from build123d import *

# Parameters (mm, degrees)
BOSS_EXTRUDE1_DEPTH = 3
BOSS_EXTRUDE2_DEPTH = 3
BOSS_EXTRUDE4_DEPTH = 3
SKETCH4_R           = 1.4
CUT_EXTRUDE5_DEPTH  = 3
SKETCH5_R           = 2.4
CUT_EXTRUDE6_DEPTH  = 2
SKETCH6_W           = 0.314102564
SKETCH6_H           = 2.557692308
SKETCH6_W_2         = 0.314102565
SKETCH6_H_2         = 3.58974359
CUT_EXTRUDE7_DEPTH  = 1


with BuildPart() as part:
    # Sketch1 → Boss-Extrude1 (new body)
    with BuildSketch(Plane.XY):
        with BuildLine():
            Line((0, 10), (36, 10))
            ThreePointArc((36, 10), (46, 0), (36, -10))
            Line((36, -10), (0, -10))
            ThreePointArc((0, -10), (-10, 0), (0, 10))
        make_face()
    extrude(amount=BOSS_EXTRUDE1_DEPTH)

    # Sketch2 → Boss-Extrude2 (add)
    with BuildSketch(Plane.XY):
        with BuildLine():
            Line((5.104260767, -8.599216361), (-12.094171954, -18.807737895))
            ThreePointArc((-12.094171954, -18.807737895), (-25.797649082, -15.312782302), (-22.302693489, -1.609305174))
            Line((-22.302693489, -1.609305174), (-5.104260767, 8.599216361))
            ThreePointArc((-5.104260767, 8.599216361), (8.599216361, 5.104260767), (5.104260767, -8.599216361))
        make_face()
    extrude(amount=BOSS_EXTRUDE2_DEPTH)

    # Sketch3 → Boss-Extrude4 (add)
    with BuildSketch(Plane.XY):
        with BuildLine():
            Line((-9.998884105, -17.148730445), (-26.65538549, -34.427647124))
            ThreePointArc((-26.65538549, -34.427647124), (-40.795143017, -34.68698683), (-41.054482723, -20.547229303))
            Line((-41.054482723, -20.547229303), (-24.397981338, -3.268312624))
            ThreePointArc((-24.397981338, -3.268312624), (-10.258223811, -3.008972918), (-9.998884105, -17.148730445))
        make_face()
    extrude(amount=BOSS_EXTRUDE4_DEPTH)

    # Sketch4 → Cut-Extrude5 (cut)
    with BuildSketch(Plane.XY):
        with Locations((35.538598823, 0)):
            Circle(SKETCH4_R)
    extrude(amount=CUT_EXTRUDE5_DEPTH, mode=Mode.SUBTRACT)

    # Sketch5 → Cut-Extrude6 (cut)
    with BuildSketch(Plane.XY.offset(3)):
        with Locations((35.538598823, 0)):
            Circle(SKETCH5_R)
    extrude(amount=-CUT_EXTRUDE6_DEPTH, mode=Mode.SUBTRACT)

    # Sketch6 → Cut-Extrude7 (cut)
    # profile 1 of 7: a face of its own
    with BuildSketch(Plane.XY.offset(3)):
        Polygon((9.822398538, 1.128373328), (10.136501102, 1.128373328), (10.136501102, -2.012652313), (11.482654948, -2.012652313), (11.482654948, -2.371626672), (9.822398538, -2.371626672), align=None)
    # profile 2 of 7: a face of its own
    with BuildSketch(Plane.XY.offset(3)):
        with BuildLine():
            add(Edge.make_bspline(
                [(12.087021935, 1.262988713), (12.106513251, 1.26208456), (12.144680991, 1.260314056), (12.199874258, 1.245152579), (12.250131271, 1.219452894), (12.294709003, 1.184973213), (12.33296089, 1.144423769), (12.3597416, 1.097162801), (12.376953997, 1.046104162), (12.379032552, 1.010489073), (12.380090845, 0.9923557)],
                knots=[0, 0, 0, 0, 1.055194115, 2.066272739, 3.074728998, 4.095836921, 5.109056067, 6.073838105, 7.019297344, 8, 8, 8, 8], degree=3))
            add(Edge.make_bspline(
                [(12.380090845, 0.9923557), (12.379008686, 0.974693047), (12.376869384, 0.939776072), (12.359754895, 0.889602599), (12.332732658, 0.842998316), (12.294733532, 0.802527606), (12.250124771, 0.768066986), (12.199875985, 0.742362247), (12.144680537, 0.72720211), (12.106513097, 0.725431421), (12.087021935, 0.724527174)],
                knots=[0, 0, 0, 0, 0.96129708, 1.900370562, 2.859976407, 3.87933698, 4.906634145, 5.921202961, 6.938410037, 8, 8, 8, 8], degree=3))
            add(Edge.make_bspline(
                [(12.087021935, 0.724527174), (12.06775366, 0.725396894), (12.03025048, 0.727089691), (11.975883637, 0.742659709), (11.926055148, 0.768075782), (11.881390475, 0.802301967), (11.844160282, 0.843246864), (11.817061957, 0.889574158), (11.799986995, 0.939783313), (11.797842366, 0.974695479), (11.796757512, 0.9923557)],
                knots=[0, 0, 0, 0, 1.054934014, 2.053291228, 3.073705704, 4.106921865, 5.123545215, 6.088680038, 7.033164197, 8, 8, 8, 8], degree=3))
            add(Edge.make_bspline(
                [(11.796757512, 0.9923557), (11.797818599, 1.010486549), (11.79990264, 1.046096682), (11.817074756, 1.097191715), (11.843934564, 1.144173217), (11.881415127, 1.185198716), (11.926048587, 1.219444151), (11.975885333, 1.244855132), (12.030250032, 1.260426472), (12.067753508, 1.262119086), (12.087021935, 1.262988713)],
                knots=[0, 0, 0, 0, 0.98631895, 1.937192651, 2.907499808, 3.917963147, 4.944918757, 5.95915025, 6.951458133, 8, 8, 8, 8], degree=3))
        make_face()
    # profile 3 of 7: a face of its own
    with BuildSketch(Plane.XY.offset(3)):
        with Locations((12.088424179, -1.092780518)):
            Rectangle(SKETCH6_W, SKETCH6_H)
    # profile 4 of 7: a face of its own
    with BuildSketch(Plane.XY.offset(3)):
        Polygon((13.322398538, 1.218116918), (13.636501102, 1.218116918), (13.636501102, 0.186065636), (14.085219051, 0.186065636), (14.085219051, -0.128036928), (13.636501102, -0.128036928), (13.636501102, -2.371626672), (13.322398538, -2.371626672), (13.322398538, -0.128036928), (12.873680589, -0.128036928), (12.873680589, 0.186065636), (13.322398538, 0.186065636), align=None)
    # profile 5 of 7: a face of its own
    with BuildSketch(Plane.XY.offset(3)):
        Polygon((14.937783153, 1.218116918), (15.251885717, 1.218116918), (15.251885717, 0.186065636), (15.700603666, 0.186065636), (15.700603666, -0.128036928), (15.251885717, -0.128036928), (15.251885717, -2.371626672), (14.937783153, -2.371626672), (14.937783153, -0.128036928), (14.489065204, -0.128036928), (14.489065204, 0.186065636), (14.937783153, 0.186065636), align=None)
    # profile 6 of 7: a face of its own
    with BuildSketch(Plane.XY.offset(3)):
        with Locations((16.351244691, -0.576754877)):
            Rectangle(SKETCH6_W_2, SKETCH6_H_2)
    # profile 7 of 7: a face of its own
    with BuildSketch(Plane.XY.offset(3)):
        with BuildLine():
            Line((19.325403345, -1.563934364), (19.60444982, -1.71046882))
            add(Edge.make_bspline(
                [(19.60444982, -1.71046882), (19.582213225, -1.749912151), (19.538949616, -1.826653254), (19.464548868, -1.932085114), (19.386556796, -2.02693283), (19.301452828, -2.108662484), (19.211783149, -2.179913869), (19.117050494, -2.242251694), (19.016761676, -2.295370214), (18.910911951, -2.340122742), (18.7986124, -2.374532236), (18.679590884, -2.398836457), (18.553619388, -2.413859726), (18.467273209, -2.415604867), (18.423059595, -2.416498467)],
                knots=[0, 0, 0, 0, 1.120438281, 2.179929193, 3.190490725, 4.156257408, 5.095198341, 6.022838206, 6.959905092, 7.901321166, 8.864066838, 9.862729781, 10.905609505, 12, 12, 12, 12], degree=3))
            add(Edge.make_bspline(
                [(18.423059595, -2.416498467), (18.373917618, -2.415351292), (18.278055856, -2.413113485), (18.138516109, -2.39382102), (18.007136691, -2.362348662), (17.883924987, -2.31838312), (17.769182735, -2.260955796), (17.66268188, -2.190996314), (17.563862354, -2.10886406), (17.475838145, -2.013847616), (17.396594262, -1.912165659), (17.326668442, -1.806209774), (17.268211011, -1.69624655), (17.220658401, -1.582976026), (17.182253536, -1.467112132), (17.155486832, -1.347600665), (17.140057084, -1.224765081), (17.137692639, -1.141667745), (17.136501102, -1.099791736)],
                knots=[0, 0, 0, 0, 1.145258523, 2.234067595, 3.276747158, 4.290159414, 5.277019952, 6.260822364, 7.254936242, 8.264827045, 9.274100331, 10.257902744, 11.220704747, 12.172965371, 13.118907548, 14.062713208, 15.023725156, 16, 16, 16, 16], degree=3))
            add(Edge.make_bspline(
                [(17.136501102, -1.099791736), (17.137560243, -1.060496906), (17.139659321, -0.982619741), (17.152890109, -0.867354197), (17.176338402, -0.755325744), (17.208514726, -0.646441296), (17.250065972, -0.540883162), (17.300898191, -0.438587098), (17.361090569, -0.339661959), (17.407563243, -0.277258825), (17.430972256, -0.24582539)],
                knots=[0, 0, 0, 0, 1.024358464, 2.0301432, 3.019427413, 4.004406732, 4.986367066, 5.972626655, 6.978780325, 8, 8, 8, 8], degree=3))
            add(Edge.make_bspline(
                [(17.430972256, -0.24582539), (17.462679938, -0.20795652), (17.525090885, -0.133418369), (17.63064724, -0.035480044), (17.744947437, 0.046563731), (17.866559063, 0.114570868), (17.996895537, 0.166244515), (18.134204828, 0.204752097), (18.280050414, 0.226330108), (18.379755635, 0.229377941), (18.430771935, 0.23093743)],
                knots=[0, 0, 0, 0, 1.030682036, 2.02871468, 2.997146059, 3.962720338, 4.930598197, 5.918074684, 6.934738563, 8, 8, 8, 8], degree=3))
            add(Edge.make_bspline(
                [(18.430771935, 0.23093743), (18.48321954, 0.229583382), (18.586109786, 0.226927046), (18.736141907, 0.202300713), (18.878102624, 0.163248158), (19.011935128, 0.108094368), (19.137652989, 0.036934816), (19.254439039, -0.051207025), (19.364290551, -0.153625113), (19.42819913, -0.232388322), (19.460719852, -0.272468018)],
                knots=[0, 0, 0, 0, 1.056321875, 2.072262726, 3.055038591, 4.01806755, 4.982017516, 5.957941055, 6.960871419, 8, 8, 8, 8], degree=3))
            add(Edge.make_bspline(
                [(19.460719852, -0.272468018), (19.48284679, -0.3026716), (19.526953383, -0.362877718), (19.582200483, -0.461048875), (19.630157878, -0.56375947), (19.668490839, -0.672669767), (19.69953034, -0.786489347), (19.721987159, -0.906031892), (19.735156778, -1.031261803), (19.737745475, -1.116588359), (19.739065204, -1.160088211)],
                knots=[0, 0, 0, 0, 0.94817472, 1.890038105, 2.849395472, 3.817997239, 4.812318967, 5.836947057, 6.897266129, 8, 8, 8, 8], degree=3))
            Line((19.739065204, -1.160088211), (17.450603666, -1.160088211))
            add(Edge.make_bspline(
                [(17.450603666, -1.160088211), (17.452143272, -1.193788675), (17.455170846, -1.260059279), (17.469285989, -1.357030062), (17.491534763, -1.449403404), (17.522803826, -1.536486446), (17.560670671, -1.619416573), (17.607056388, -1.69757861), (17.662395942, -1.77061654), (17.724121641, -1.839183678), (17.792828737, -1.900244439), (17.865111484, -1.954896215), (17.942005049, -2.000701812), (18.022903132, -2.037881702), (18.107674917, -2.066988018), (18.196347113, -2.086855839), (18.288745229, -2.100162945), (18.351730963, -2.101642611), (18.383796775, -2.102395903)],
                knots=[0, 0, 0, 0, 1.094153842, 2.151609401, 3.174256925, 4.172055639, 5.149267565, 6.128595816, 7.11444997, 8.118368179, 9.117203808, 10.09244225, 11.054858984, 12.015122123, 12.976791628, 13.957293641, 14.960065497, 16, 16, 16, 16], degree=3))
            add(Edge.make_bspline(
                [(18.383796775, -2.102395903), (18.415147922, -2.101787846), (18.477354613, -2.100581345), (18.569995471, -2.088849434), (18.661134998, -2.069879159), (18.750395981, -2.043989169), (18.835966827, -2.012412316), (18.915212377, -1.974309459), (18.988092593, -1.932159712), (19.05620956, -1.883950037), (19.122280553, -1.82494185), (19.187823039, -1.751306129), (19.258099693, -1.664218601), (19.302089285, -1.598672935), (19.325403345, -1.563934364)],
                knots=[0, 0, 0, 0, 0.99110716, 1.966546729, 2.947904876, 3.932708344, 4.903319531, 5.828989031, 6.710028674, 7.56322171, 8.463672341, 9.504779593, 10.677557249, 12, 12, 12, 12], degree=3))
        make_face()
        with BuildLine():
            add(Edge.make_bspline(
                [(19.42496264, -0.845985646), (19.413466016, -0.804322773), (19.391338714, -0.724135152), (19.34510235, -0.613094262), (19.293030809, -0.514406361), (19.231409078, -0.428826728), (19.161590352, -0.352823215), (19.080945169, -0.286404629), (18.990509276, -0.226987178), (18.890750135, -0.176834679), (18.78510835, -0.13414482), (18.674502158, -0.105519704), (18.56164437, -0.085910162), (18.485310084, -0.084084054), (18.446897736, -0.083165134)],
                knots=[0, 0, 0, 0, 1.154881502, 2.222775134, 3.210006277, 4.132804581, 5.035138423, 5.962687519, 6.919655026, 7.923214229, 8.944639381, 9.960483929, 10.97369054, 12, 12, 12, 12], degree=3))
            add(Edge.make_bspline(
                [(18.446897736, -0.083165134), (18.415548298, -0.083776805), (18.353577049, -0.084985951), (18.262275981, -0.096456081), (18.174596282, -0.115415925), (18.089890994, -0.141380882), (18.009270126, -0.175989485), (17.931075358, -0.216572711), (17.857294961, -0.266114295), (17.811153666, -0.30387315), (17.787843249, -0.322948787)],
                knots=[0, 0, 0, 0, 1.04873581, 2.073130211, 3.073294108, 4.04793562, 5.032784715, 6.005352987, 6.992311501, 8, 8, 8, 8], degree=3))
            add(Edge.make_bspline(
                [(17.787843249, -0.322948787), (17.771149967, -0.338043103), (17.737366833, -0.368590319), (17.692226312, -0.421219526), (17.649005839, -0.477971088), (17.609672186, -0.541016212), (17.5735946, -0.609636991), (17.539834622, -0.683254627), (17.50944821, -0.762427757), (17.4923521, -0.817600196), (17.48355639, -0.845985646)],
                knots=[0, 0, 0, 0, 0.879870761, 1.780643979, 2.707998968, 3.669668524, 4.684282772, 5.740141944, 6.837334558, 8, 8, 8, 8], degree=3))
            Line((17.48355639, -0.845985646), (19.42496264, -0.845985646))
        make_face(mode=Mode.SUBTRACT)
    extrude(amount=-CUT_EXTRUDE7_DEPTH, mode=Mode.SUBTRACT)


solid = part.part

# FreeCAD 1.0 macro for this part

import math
import FreeCAD as App
import Part
import Sketcher
Q = App.Units.Quantity


def add_polygon(sketch, points):
    """Adds a closed chain of lines whose ends are joined by coincident constraints."""
    first, n = sketch.GeometryCount, len(points)
    for a, b in zip(points, points[1:] + points[:1]):
        sketch.addGeometry(Part.LineSegment(App.Vector(*a, 0), App.Vector(*b, 0)), False)
    for i in range(n):
        sketch.addConstraint(Sketcher.Constraint("Coincident", first + i, 2, first + (i + 1) % n, 1))

doc = App.newDocument("Part")
body = doc.addObject("PartDesign::Body", "Body")

sketch1 = body.newObject("Sketcher::SketchObject", "Sketch")
sketch1.AttachmentSupport = (doc.getObject("XY_Plane"), [""])
sketch1.MapMode = "FlatFace"
sketch1.addGeometry(Part.LineSegment(App.Vector(36, 10, 0), App.Vector(0, 10, 0)), False)
sketch1.addGeometry(Part.ArcOfCircle(Part.Circle(App.Vector(0, 0, 0), App.Vector(0, 0, 1), 10), math.radians(90), math.radians(270)), False)
sketch1.addGeometry(Part.LineSegment(App.Vector(0, -10, 0), App.Vector(36, -10, 0)), False)
sketch1.addGeometry(Part.ArcOfCircle(Part.Circle(App.Vector(36, 0, 0), App.Vector(0, 0, 1), 10), math.radians(-90), math.radians(90)), False)
sketch1.addConstraint(Sketcher.Constraint("Tangent", 0, 2, 1, 1))
sketch1.addConstraint(Sketcher.Constraint("Tangent", 1, 2, 2, 1))
sketch1.addConstraint(Sketcher.Constraint("Tangent", 2, 2, 3, 1))
sketch1.addConstraint(Sketcher.Constraint("Tangent", 3, 2, 0, 1))
sketch1.addConstraint(Sketcher.Constraint("Horizontal", 0))
sketch1.addConstraint(Sketcher.Constraint("Horizontal", 2))
sketch1.addConstraint(Sketcher.Constraint("Coincident", 1, 3, -1, 1))
sketch1.addConstraint(Sketcher.Constraint("Radius", 1, Q("10 mm")))
sketch1.addConstraint(Sketcher.Constraint("DistanceX", 0, 2, 0, 1, Q("36 mm")))
pad1 = body.newObject("PartDesign::Pad", "Pad")
pad1.Profile = sketch1
pad1.Length = 3

sketch2 = body.newObject("Sketcher::SketchObject", "Sketch001")
sketch2.AttachmentSupport = (doc.getObject("XY_Plane"), [""])
sketch2.MapMode = "FlatFace"
sketch2.addGeometry(Part.LineSegment(App.Vector(-12, -19, 0), App.Vector(5, -9, 0)), False)
sketch2.addGeometry(Part.ArcOfCircle(Part.Circle(App.Vector(0, 0, 0), App.Vector(0, 0, 1), 10), math.radians(-59), math.radians(121)), False)
sketch2.addGeometry(Part.LineSegment(App.Vector(-5, 9, 0), App.Vector(-22, -2, 0)), False)
sketch2.addGeometry(Part.ArcOfCircle(Part.Circle(App.Vector(-17, -10, 0), App.Vector(0, 0, 1), 10), math.radians(121), math.radians(301)), False)
sketch2.addConstraint(Sketcher.Constraint("Tangent", 0, 2, 1, 1))
sketch2.addConstraint(Sketcher.Constraint("Tangent", 1, 2, 2, 1))
sketch2.addConstraint(Sketcher.Constraint("Tangent", 2, 2, 3, 1))
sketch2.addConstraint(Sketcher.Constraint("Tangent", 3, 2, 0, 1))
sketch2.addConstraint(Sketcher.Constraint("Coincident", 1, 3, -1, 1))
sketch2.addConstraint(Sketcher.Constraint("Equal", 1, 3))
sketch2.addConstraint(Sketcher.Constraint("Radius", 1, Q("10 mm")))
sketch2.addConstraint(Sketcher.Constraint("Distance", 0, Q("20 mm")))
sketch2.addConstraint(Sketcher.Constraint("DistanceY", 3, 3, -1, 1, Q("10.208522 mm")))
pad2 = body.newObject("PartDesign::Pad", "Pad001")
pad2.Profile = sketch2
pad2.Length = 3

sketch3 = body.newObject("Sketcher::SketchObject", "Sketch002")
sketch3.AttachmentSupport = (doc.getObject("XY_Plane"), [""])
sketch3.MapMode = "FlatFace"
sketch3.addGeometry(Part.LineSegment(App.Vector(-27, -34, 0), App.Vector(-10, -17, 0)), False)
sketch3.addGeometry(Part.ArcOfCircle(Part.Circle(App.Vector(-17, -10, 0), App.Vector(0, 0, 1), 10), math.radians(-44), math.radians(136)), False)
sketch3.addGeometry(Part.LineSegment(App.Vector(-24, -3, 0), App.Vector(-41, -21, 0)), False)
sketch3.addGeometry(Part.ArcOfCircle(Part.Circle(App.Vector(-34, -27, 0), App.Vector(0, 0, 1), 10), math.radians(136), math.radians(316)), False)
sketch3.addConstraint(Sketcher.Constraint("Tangent", 0, 2, 1, 1))
sketch3.addConstraint(Sketcher.Constraint("Tangent", 1, 2, 2, 1))
sketch3.addConstraint(Sketcher.Constraint("Tangent", 2, 2, 3, 1))
sketch3.addConstraint(Sketcher.Constraint("Tangent", 3, 2, 0, 1))
sketch3.addConstraint(Sketcher.Constraint("Equal", 1, 3))
sketch3.addConstraint(Sketcher.Constraint("Radius", 1, Q("10 mm")))
sketch3.addConstraint(Sketcher.Constraint("Distance", 0, Q("24 mm")))
sketch3.addConstraint(Sketcher.Constraint("DistanceX", 3, 3, 1, 3, Q("16.656501 mm")))
sketch3.addConstraint(Sketcher.Constraint("DistanceY", 1, 3, -1, 1, Q("10.208522 mm")))
sketch3.addConstraint(Sketcher.Constraint("DistanceX", 1, 2, -1, 1, Q("24.397981 mm")))
pad3 = body.newObject("PartDesign::Pad", "Pad002")
pad3.Profile = sketch3
pad3.Length = 3

sketch4 = body.newObject("Sketcher::SketchObject", "Sketch003")
sketch4.AttachmentSupport = (doc.getObject("XY_Plane"), [""])
sketch4.MapMode = "FlatFace"
sketch4.addGeometry(Part.Circle(App.Vector(35.5, 0, 0), App.Vector(0, 0, 1), 1.4), False)
sketch4.addConstraint(Sketcher.Constraint("PointOnObject", 0, 3, -1))
sketch4.addConstraint(Sketcher.Constraint("Diameter", 0, Q("2.8 mm")))
sketch4.addConstraint(Sketcher.Constraint("DistanceX", -1, 1, 0, 3, Q("35.538599 mm")))
pocket1 = body.newObject("PartDesign::Pocket", "Pocket")
pocket1.Profile = sketch4
pocket1.Length = 3
pocket1.Reversed = True

sketch5 = body.newObject("Sketcher::SketchObject", "Sketch004")
sketch5.AttachmentSupport = (doc.getObject("XY_Plane"), [""])
sketch5.MapMode = "FlatFace"
sketch5.AttachmentOffset = App.Placement(App.Vector(0, 0, 3), App.Rotation())
sketch5.addGeometry(Part.Circle(App.Vector(35.5, 0, 0), App.Vector(0, 0, 1), 2.4), False)
sketch5.addConstraint(Sketcher.Constraint("PointOnObject", 0, 3, -1))
sketch5.addConstraint(Sketcher.Constraint("Diameter", 0, Q("4.8 mm")))
sketch5.addConstraint(Sketcher.Constraint("DistanceX", -1, 1, 0, 3, Q("35.538599 mm")))
pocket2 = body.newObject("PartDesign::Pocket", "Pocket001")
pocket2.Profile = sketch5
pocket2.Length = 2

sketch6 = body.newObject("Sketcher::SketchObject", "Sketch005")
sketch6.AttachmentSupport = (doc.getObject("XY_Plane"), [""])
sketch6.MapMode = "FlatFace"
sketch6.AttachmentOffset = App.Placement(App.Vector(0, 0, 3), App.Rotation())
add_polygon(sketch6, [(10.136501, 1.128373), (9.822399, 1.128373), (9.822399, -2.371627), (11.482655, -2.371627), (11.482655, -2.012652), (10.136501, -2.012652)])
sketch6.addGeometry(Part.BSplineCurve([App.Vector(12.087022, 1.262989, 0), App.Vector(12.106513, 1.262085, 0), App.Vector(12.144681, 1.260314, 0), App.Vector(12.199874, 1.245153, 0), App.Vector(12.250131, 1.219453, 0), App.Vector(12.294709, 1.184973, 0), App.Vector(12.332961, 1.144424, 0), App.Vector(12.359742, 1.097163, 0), App.Vector(12.376954, 1.046104, 0), App.Vector(12.379033, 1.010489, 0), App.Vector(12.380091, 0.992356, 0)], [4, 1, 1, 1, 1, 1, 1, 1, 4], [0, 1.055194115, 2.066272739, 3.074728998, 4.095836921, 5.109056067, 6.073838105, 7.019297344, 8], False, 3, [1, 1, 1, 1, 1, 1, 1, 1, 1, 1, 1], False), False)
sketch6.addGeometry(Part.BSplineCurve([App.Vector(11.796758, 0.992356, 0), App.Vector(11.797819, 1.010487, 0), App.Vector(11.799903, 1.046097, 0), App.Vector(11.817075, 1.097192, 0), App.Vector(11.843935, 1.144173, 0), App.Vector(11.881415, 1.185199, 0), App.Vector(11.926049, 1.219444, 0), App.Vector(11.975885, 1.244855, 0), App.Vector(12.03025, 1.260426, 0), App.Vector(12.067754, 1.262119, 0), App.Vector(12.087022, 1.262989, 0)], [4, 1, 1, 1, 1, 1, 1, 1, 4], [0, 0.98631895, 1.937192651, 2.907499808, 3.917963147, 4.944918757, 5.95915025, 6.951458133, 8], False, 3, [1, 1, 1, 1, 1, 1, 1, 1, 1, 1, 1], False), False)
sketch6.addGeometry(Part.BSplineCurve([App.Vector(12.087022, 0.724527, 0), App.Vector(12.067754, 0.725397, 0), App.Vector(12.03025, 0.72709, 0), App.Vector(11.975884, 0.74266, 0), App.Vector(11.926055, 0.768076, 0), App.Vector(11.88139, 0.802302, 0), App.Vector(11.84416, 0.843247, 0), App.Vector(11.817062, 0.889574, 0), App.Vector(11.799987, 0.939783, 0), App.Vector(11.797842, 0.974695, 0), App.Vector(11.796758, 0.992356, 0)], [4, 1, 1, 1, 1, 1, 1, 1, 4], [0, 1.054934014, 2.053291228, 3.073705704, 4.106921865, 5.123545215, 6.088680038, 7.033164197, 8], False, 3, [1, 1, 1, 1, 1, 1, 1, 1, 1, 1, 1], False), False)
sketch6.addGeometry(Part.BSplineCurve([App.Vector(12.380091, 0.992356, 0), App.Vector(12.379009, 0.974693, 0), App.Vector(12.376869, 0.939776, 0), App.Vector(12.359755, 0.889603, 0), App.Vector(12.332733, 0.842998, 0), App.Vector(12.294734, 0.802528, 0), App.Vector(12.250125, 0.768067, 0), App.Vector(12.199876, 0.742362, 0), App.Vector(12.144681, 0.727202, 0), App.Vector(12.106513, 0.725431, 0), App.Vector(12.087022, 0.724527, 0)], [4, 1, 1, 1, 1, 1, 1, 1, 4], [0, 0.96129708, 1.900370562, 2.859976407, 3.87933698, 4.906634145, 5.921202961, 6.938410037, 8], False, 3, [1, 1, 1, 1, 1, 1, 1, 1, 1, 1, 1], False), False)
add_polygon(sketch6, [(11.931373, 0.186066), (11.931373, -2.371627), (12.245475, -2.371627), (12.245475, 0.186066)])
add_polygon(sketch6, [(13.636501, 1.218117), (13.322399, 1.218117), (13.322399, 0.186066), (12.873681, 0.186066), (12.873681, -0.128037), (13.322399, -0.128037), (13.322399, -2.371627), (13.636501, -2.371627), (13.636501, -0.128037), (14.085219, -0.128037), (14.085219, 0.186066), (13.636501, 0.186066)])
add_polygon(sketch6, [(15.251886, 1.218117), (14.937783, 1.218117), (14.937783, 0.186066), (14.489065, 0.186066), (14.489065, -0.128037), (14.937783, -0.128037), (14.937783, -2.371627), (15.251886, -2.371627), (15.251886, -0.128037), (15.700604, -0.128037), (15.700604, 0.186066), (15.251886, 0.186066)])
add_polygon(sketch6, [(16.194193, 1.218117), (16.194193, -2.371627), (16.508296, -2.371627), (16.508296, 1.218117)])
sketch6.addGeometry(Part.LineSegment(App.Vector(19.60445, -1.710469, 0), App.Vector(19.325403, -1.563934, 0)), False)
sketch6.addGeometry(Part.BSplineCurve([App.Vector(18.383797, -2.102396, 0), App.Vector(18.415148, -2.101788, 0), App.Vector(18.477355, -2.100581, 0), App.Vector(18.569995, -2.088849, 0), App.Vector(18.661135, -2.069879, 0), App.Vector(18.750396, -2.043989, 0), App.Vector(18.835967, -2.012412, 0), App.Vector(18.915212, -1.974309, 0), App.Vector(18.988093, -1.93216, 0), App.Vector(19.05621, -1.88395, 0), App.Vector(19.122281, -1.824942, 0), App.Vector(19.187823, -1.751306, 0), App.Vector(19.2581, -1.664219, 0), App.Vector(19.302089, -1.598673, 0), App.Vector(19.325403, -1.563934, 0)], [4, 1, 1, 1, 1, 1, 1, 1, 1, 1, 1, 1, 4], [0, 0.99110716, 1.966546729, 2.947904876, 3.932708344, 4.903319531, 5.828989031, 6.710028674, 7.56322171, 8.463672341, 9.504779593, 10.677557249, 12], False, 3, [1, 1, 1, 1, 1, 1, 1, 1, 1, 1, 1, 1, 1, 1, 1], False), False)
sketch6.addGeometry(Part.BSplineCurve([App.Vector(17.450604, -1.160088, 0), App.Vector(17.452143, -1.193789, 0), App.Vector(17.455171, -1.260059, 0), App.Vector(17.469286, -1.35703, 0), App.Vector(17.491535, -1.449403, 0), App.Vector(17.522804, -1.536486, 0), App.Vector(17.560671, -1.619417, 0), App.Vector(17.607056, -1.697579, 0), App.Vector(17.662396, -1.770617, 0), App.Vector(17.724122, -1.839184, 0), App.Vector(17.792829, -1.900244, 0), App.Vector(17.865111, -1.954896, 0), App.Vector(17.942005, -2.000702, 0), App.Vector(18.022903, -2.037882, 0), App.Vector(18.107675, -2.066988, 0), App.Vector(18.196347, -2.086856, 0), App.Vector(18.288745, -2.100163, 0), App.Vector(18.351731, -2.101643, 0), App.Vector(18.383797, -2.102396, 0)], [4, 1, 1, 1, 1, 1, 1, 1, 1, 1, 1, 1, 1, 1, 1, 1, 4], [0, 1.094153842, 2.151609401, 3.174256925, 4.172055639, 5.149267565, 6.128595816, 7.11444997, 8.118368179, 9.117203808, 10.09244225, 11.054858984, 12.015122123, 12.976791628, 13.957293641, 14.960065497, 16], False, 3, [1, 1, 1, 1, 1, 1, 1, 1, 1, 1, 1, 1, 1, 1, 1, 1, 1, 1, 1], False), False)
sketch6.addGeometry(Part.LineSegment(App.Vector(17.450604, -1.160088, 0), App.Vector(19.739065, -1.160088, 0)), False)
sketch6.addGeometry(Part.BSplineCurve([App.Vector(19.46072, -0.272468, 0), App.Vector(19.482847, -0.302672, 0), App.Vector(19.526953, -0.362878, 0), App.Vector(19.5822, -0.461049, 0), App.Vector(19.630158, -0.563759, 0), App.Vector(19.668491, -0.67267, 0), App.Vector(19.69953, -0.786489, 0), App.Vector(19.721987, -0.906032, 0), App.Vector(19.735157, -1.031262, 0), App.Vector(19.737745, -1.116588, 0), App.Vector(19.739065, -1.160088, 0)], [4, 1, 1, 1, 1, 1, 1, 1, 4], [0, 0.94817472, 1.890038105, 2.849395472, 3.817997239, 4.812318967, 5.836947057, 6.897266129, 8], False, 3, [1, 1, 1, 1, 1, 1, 1, 1, 1, 1, 1], False), False)
sketch6.addGeometry(Part.BSplineCurve([App.Vector(18.430772, 0.230937, 0), App.Vector(18.48322, 0.229583, 0), App.Vector(18.58611, 0.226927, 0), App.Vector(18.736142, 0.202301, 0), App.Vector(18.878103, 0.163248, 0), App.Vector(19.011935, 0.108094, 0), App.Vector(19.137653, 0.036935, 0), App.Vector(19.254439, -0.051207, 0), App.Vector(19.364291, -0.153625, 0), App.Vector(19.428199, -0.232388, 0), App.Vector(19.46072, -0.272468, 0)], [4, 1, 1, 1, 1, 1, 1, 1, 4], [0, 1.056321875, 2.072262726, 3.055038591, 4.01806755, 4.982017516, 5.957941055, 6.960871419, 8], False, 3, [1, 1, 1, 1, 1, 1, 1, 1, 1, 1, 1], False), False)
sketch6.addGeometry(Part.BSplineCurve([App.Vector(17.430972, -0.245825, 0), App.Vector(17.46268, -0.207957, 0), App.Vector(17.525091, -0.133418, 0), App.Vector(17.630647, -0.03548, 0), App.Vector(17.744947, 0.046564, 0), App.Vector(17.866559, 0.114571, 0), App.Vector(17.996896, 0.166245, 0), App.Vector(18.134205, 0.204752, 0), App.Vector(18.28005, 0.22633, 0), App.Vector(18.379756, 0.229378, 0), App.Vector(18.430772, 0.230937, 0)], [4, 1, 1, 1, 1, 1, 1, 1, 4], [0, 1.030682036, 2.02871468, 2.997146059, 3.962720338, 4.930598197, 5.918074684, 6.934738563, 8], False, 3, [1, 1, 1, 1, 1, 1, 1, 1, 1, 1, 1], False), False)
sketch6.addGeometry(Part.BSplineCurve([App.Vector(17.136501, -1.099792, 0), App.Vector(17.13756, -1.060497, 0), App.Vector(17.139659, -0.98262, 0), App.Vector(17.15289, -0.867354, 0), App.Vector(17.176338, -0.755326, 0), App.Vector(17.208515, -0.646441, 0), App.Vector(17.250066, -0.540883, 0), App.Vector(17.300898, -0.438587, 0), App.Vector(17.361091, -0.339662, 0), App.Vector(17.407563, -0.277259, 0), App.Vector(17.430972, -0.245825, 0)], [4, 1, 1, 1, 1, 1, 1, 1, 4], [0, 1.024358464, 2.0301432, 3.019427413, 4.004406732, 4.986367066, 5.972626655, 6.978780325, 8], False, 3, [1, 1, 1, 1, 1, 1, 1, 1, 1, 1, 1], False), False)
sketch6.addGeometry(Part.BSplineCurve([App.Vector(18.42306, -2.416498, 0), App.Vector(18.373918, -2.415351, 0), App.Vector(18.278056, -2.413113, 0), App.Vector(18.138516, -2.393821, 0), App.Vector(18.007137, -2.362349, 0), App.Vector(17.883925, -2.318383, 0), App.Vector(17.769183, -2.260956, 0), App.Vector(17.662682, -2.190996, 0), App.Vector(17.563862, -2.108864, 0), App.Vector(17.475838, -2.013848, 0), App.Vector(17.396594, -1.912166, 0), App.Vector(17.326668, -1.80621, 0), App.Vector(17.268211, -1.696247, 0), App.Vector(17.220658, -1.582976, 0), App.Vector(17.182254, -1.467112, 0), App.Vector(17.155487, -1.347601, 0), App.Vector(17.140057, -1.224765, 0), App.Vector(17.137693, -1.141668, 0), App.Vector(17.136501, -1.099792, 0)], [4, 1, 1, 1, 1, 1, 1, 1, 1, 1, 1, 1, 1, 1, 1, 1, 4], [0, 1.145258523, 2.234067595, 3.276747158, 4.290159414, 5.277019952, 6.260822364, 7.254936242, 8.264827045, 9.274100331, 10.257902744, 11.220704747, 12.172965371, 13.118907548, 14.062713208, 15.023725156, 16], False, 3, [1, 1, 1, 1, 1, 1, 1, 1, 1, 1, 1, 1, 1, 1, 1, 1, 1, 1, 1], False), False)
sketch6.addGeometry(Part.BSplineCurve([App.Vector(19.60445, -1.710469, 0), App.Vector(19.582213, -1.749912, 0), App.Vector(19.53895, -1.826653, 0), App.Vector(19.464549, -1.932085, 0), App.Vector(19.386557, -2.026933, 0), App.Vector(19.301453, -2.108662, 0), App.Vector(19.211783, -2.179914, 0), App.Vector(19.11705, -2.242252, 0), App.Vector(19.016762, -2.29537, 0), App.Vector(18.910912, -2.340123, 0), App.Vector(18.798612, -2.374532, 0), App.Vector(18.679591, -2.398836, 0), App.Vector(18.553619, -2.41386, 0), App.Vector(18.467273, -2.415605, 0), App.Vector(18.42306, -2.416498, 0)], [4, 1, 1, 1, 1, 1, 1, 1, 1, 1, 1, 1, 4], [0, 1.120438281, 2.179929193, 3.190490725, 4.156257408, 5.095198341, 6.022838206, 6.959905092, 7.901321166, 8.864066838, 9.862729781, 10.905609505, 12], False, 3, [1, 1, 1, 1, 1, 1, 1, 1, 1, 1, 1, 1, 1, 1, 1], False), False)
sketch6.addGeometry(Part.LineSegment(App.Vector(19.424963, -0.845986, 0), App.Vector(17.483556, -0.845986, 0)), False)
sketch6.addGeometry(Part.BSplineCurve([App.Vector(17.787843, -0.322949, 0), App.Vector(17.77115, -0.338043, 0), App.Vector(17.737367, -0.36859, 0), App.Vector(17.692226, -0.42122, 0), App.Vector(17.649006, -0.477971, 0), App.Vector(17.609672, -0.541016, 0), App.Vector(17.573595, -0.609637, 0), App.Vector(17.539835, -0.683255, 0), App.Vector(17.509448, -0.762428, 0), App.Vector(17.492352, -0.8176, 0), App.Vector(17.483556, -0.845986, 0)], [4, 1, 1, 1, 1, 1, 1, 1, 4], [0, 0.879870761, 1.780643979, 2.707998968, 3.669668524, 4.684282772, 5.740141944, 6.837334558, 8], False, 3, [1, 1, 1, 1, 1, 1, 1, 1, 1, 1, 1], False), False)
sketch6.addGeometry(Part.BSplineCurve([App.Vector(18.446898, -0.083165, 0), App.Vector(18.415548, -0.083777, 0), App.Vector(18.353577, -0.084986, 0), App.Vector(18.262276, -0.096456, 0), App.Vector(18.174596, -0.115416, 0), App.Vector(18.089891, -0.141381, 0), App.Vector(18.00927, -0.175989, 0), App.Vector(17.931075, -0.216573, 0), App.Vector(17.857295, -0.266114, 0), App.Vector(17.811154, -0.303873, 0), App.Vector(17.787843, -0.322949, 0)], [4, 1, 1, 1, 1, 1, 1, 1, 4], [0, 1.04873581, 2.073130211, 3.073294108, 4.04793562, 5.032784715, 6.005352987, 6.992311501, 8], False, 3, [1, 1, 1, 1, 1, 1, 1, 1, 1, 1, 1], False), False)
sketch6.addGeometry(Part.BSplineCurve([App.Vector(19.424963, -0.845986, 0), App.Vector(19.413466, -0.804323, 0), App.Vector(19.391339, -0.724135, 0), App.Vector(19.345102, -0.613094, 0), App.Vector(19.293031, -0.514406, 0), App.Vector(19.231409, -0.428827, 0), App.Vector(19.16159, -0.352823, 0), App.Vector(19.080945, -0.286405, 0), App.Vector(18.990509, -0.226987, 0), App.Vector(18.89075, -0.176835, 0), App.Vector(18.785108, -0.134145, 0), App.Vector(18.674502, -0.10552, 0), App.Vector(18.561644, -0.08591, 0), App.Vector(18.48531, -0.084084, 0), App.Vector(18.446898, -0.083165, 0)], [4, 1, 1, 1, 1, 1, 1, 1, 1, 1, 1, 1, 4], [0, 1.154881502, 2.222775134, 3.210006277, 4.132804581, 5.035138423, 5.962687519, 6.919655026, 7.923214229, 8.944639381, 9.960483929, 10.97369054, 12], False, 3, [1, 1, 1, 1, 1, 1, 1, 1, 1, 1, 1, 1, 1, 1, 1], False), False)
sketch6.addConstraint(Sketcher.Constraint("Block", 6))
sketch6.addConstraint(Sketcher.Constraint("Block", 7))
sketch6.addConstraint(Sketcher.Constraint("Block", 8))
sketch6.addConstraint(Sketcher.Constraint("Block", 9))
sketch6.addConstraint(Sketcher.Constraint("Block", 43))
sketch6.addConstraint(Sketcher.Constraint("Block", 44))
sketch6.addConstraint(Sketcher.Constraint("Block", 46))
sketch6.addConstraint(Sketcher.Constraint("Block", 47))
sketch6.addConstraint(Sketcher.Constraint("Block", 48))
sketch6.addConstraint(Sketcher.Constraint("Block", 49))
sketch6.addConstraint(Sketcher.Constraint("Block", 50))
sketch6.addConstraint(Sketcher.Constraint("Block", 51))
sketch6.addConstraint(Sketcher.Constraint("Block", 53))
sketch6.addConstraint(Sketcher.Constraint("Block", 54))
sketch6.addConstraint(Sketcher.Constraint("Block", 55))
sketch6.addConstraint(Sketcher.Constraint("Coincident", 42, 2, 43, 2))
sketch6.addConstraint(Sketcher.Constraint("Coincident", 44, 1, 45, 1))
sketch6.addConstraint(Sketcher.Constraint("Coincident", 45, 2, 46, 2))
sketch6.addConstraint(Sketcher.Constraint("Coincident", 51, 1, 42, 1))
sketch6.addConstraint(Sketcher.Constraint("Coincident", 52, 2, 53, 2))
sketch6.addConstraint(Sketcher.Constraint("Coincident", 55, 1, 52, 1))
sketch6.addConstraint(Sketcher.Constraint("Horizontal", 0))
sketch6.addConstraint(Sketcher.Constraint("Vertical", 1))
sketch6.addConstraint(Sketcher.Constraint("Horizontal", 2))
sketch6.addConstraint(Sketcher.Constraint("Vertical", 3))
sketch6.addConstraint(Sketcher.Constraint("Horizontal", 4))
sketch6.addConstraint(Sketcher.Constraint("Vertical", 5))
sketch6.addConstraint(Sketcher.Constraint("Vertical", 10))
sketch6.addConstraint(Sketcher.Constraint("Horizontal", 11))
sketch6.addConstraint(Sketcher.Constraint("Vertical", 12))
sketch6.addConstraint(Sketcher.Constraint("Horizontal", 13))
sketch6.addConstraint(Sketcher.Constraint("Horizontal", 14))
sketch6.addConstraint(Sketcher.Constraint("Vertical", 15))
sketch6.addConstraint(Sketcher.Constraint("Horizontal", 16))
sketch6.addConstraint(Sketcher.Constraint("Vertical", 17))
sketch6.addConstraint(Sketcher.Constraint("Horizontal", 18))
sketch6.addConstraint(Sketcher.Constraint("Vertical", 19))
sketch6.addConstraint(Sketcher.Constraint("Horizontal", 20))
sketch6.addConstraint(Sketcher.Constraint("Vertical", 21))
sketch6.addConstraint(Sketcher.Constraint("Horizontal", 22))
sketch6.addConstraint(Sketcher.Constraint("Vertical", 23))
sketch6.addConstraint(Sketcher.Constraint("Horizontal", 24))
sketch6.addConstraint(Sketcher.Constraint("Vertical", 25))
sketch6.addConstraint(Sketcher.Constraint("Horizontal", 26))
sketch6.addConstraint(Sketcher.Constraint("Vertical", 27))
sketch6.addConstraint(Sketcher.Constraint("Horizontal", 28))
sketch6.addConstraint(Sketcher.Constraint("Vertical", 29))
sketch6.addConstraint(Sketcher.Constraint("Horizontal", 30))
sketch6.addConstraint(Sketcher.Constraint("Vertical", 31))
sketch6.addConstraint(Sketcher.Constraint("Horizontal", 32))
sketch6.addConstraint(Sketcher.Constraint("Vertical", 33))
sketch6.addConstraint(Sketcher.Constraint("Horizontal", 34))
sketch6.addConstraint(Sketcher.Constraint("Vertical", 35))
sketch6.addConstraint(Sketcher.Constraint("Horizontal", 36))
sketch6.addConstraint(Sketcher.Constraint("Vertical", 37))
sketch6.addConstraint(Sketcher.Constraint("Vertical", 38))
sketch6.addConstraint(Sketcher.Constraint("Horizontal", 39))
sketch6.addConstraint(Sketcher.Constraint("Vertical", 40))
sketch6.addConstraint(Sketcher.Constraint("Horizontal", 41))
sketch6.addConstraint(Sketcher.Constraint("Horizontal", 2, 2, 10, 2))
sketch6.addConstraint(Sketcher.Constraint("Horizontal", 13, 2, 15, 2))
sketch6.addConstraint(Sketcher.Constraint("Horizontal", 11, 2, 19, 2))
sketch6.addConstraint(Sketcher.Constraint("Horizontal", 18, 2, 21, 2))
sketch6.addConstraint(Sketcher.Constraint("Horizontal", 16, 2, 23, 2))
sketch6.addConstraint(Sketcher.Constraint("Horizontal", 25, 2, 26, 2))
sketch6.addConstraint(Sketcher.Constraint("Horizontal", 24, 2, 27, 2))
sketch6.addConstraint(Sketcher.Constraint("Horizontal", 22, 2, 29, 2))
sketch6.addConstraint(Sketcher.Constraint("Horizontal", 20, 2, 31, 2))
sketch6.addConstraint(Sketcher.Constraint("Horizontal", 30, 2, 33, 2))
sketch6.addConstraint(Sketcher.Constraint("Horizontal", 28, 2, 35, 2))
sketch6.addConstraint(Sketcher.Constraint("Horizontal", 32, 2, 38, 2))
sketch6.addConstraint(Sketcher.Constraint("Horizontal", 37, 2, 40, 2))
sketch6.addConstraint(Sketcher.Constraint("Vertical", 15, 2, 18, 2))
sketch6.addConstraint(Sketcher.Constraint("Vertical", 21, 2, 24, 2))
sketch6.addConstraint(Sketcher.Constraint("Vertical", 27, 2, 30, 2))
sketch6.addConstraint(Sketcher.Constraint("Vertical", 33, 2, 36, 2))
sketch6.addConstraint(Sketcher.Constraint("Equal", 0, 11))
sketch6.addConstraint(Sketcher.Constraint("Equal", 13, 14))
sketch6.addConstraint(Sketcher.Constraint("Equal", 18, 22))
sketch6.addConstraint(Sketcher.Constraint("Equal", 20, 26))
sketch6.addConstraint(Sketcher.Constraint("Equal", 24, 28))
sketch6.addConstraint(Sketcher.Constraint("Equal", 30, 34))
sketch6.addConstraint(Sketcher.Constraint("Equal", 32, 39))
sketch6.addConstraint(Sketcher.Constraint("Equal", 41, 17))
sketch6.addConstraint(Sketcher.Constraint("DistanceY", 1, 2, 1, 1, Q("3.5 mm")))
sketch6.addConstraint(Sketcher.Constraint("DistanceX", 0, 2, 14, 2, Q("3.5 mm")))
sketch6.addConstraint(Sketcher.Constraint("DistanceY", 42, 2, 35, 2, Q("1.75 mm")))
sketch6.addConstraint(Sketcher.Constraint("DistanceY", 15, 2, 15, 1, Q("1.032051 mm")))
sketch6.addConstraint(Sketcher.Constraint("DistanceY", 19, 2, 19, 1, Q("2.24359 mm")))
sketch6.addConstraint(Sketcher.Constraint("DistanceX", -1, 1, 0, 2, Q("9.822399 mm")))
sketch6.addConstraint(Sketcher.Constraint("DistanceX", -1, 1, 4, 2, Q("10.136501 mm")))
sketch6.addConstraint(Sketcher.Constraint("DistanceX", 34, 2, 42, 2, Q("3.6248 mm")))
sketch6.addConstraint(Sketcher.Constraint("DistanceX", 2, 1, 2, 2, Q("1.660256 mm")))
sketch6.addConstraint(Sketcher.Constraint("DistanceX", 16, 2, 16, 1, Q("0.448718 mm")))
sketch6.addConstraint(Sketcher.Constraint("DistanceY", 3, 1, 3, 2, Q("0.358974 mm")))
sketch6.addConstraint(Sketcher.Constraint("DistanceX", 4, 2, 10, 2, Q("1.794872 mm")))
sketch6.addConstraint(Sketcher.Constraint("DistanceX", 31, 2, 38, 2, Q("1.25641 mm")))
pocket3 = body.newObject("PartDesign::Pocket", "Pocket002")
pocket3.Profile = sketch6
pocket3.Length = 1

doc.recompute()
